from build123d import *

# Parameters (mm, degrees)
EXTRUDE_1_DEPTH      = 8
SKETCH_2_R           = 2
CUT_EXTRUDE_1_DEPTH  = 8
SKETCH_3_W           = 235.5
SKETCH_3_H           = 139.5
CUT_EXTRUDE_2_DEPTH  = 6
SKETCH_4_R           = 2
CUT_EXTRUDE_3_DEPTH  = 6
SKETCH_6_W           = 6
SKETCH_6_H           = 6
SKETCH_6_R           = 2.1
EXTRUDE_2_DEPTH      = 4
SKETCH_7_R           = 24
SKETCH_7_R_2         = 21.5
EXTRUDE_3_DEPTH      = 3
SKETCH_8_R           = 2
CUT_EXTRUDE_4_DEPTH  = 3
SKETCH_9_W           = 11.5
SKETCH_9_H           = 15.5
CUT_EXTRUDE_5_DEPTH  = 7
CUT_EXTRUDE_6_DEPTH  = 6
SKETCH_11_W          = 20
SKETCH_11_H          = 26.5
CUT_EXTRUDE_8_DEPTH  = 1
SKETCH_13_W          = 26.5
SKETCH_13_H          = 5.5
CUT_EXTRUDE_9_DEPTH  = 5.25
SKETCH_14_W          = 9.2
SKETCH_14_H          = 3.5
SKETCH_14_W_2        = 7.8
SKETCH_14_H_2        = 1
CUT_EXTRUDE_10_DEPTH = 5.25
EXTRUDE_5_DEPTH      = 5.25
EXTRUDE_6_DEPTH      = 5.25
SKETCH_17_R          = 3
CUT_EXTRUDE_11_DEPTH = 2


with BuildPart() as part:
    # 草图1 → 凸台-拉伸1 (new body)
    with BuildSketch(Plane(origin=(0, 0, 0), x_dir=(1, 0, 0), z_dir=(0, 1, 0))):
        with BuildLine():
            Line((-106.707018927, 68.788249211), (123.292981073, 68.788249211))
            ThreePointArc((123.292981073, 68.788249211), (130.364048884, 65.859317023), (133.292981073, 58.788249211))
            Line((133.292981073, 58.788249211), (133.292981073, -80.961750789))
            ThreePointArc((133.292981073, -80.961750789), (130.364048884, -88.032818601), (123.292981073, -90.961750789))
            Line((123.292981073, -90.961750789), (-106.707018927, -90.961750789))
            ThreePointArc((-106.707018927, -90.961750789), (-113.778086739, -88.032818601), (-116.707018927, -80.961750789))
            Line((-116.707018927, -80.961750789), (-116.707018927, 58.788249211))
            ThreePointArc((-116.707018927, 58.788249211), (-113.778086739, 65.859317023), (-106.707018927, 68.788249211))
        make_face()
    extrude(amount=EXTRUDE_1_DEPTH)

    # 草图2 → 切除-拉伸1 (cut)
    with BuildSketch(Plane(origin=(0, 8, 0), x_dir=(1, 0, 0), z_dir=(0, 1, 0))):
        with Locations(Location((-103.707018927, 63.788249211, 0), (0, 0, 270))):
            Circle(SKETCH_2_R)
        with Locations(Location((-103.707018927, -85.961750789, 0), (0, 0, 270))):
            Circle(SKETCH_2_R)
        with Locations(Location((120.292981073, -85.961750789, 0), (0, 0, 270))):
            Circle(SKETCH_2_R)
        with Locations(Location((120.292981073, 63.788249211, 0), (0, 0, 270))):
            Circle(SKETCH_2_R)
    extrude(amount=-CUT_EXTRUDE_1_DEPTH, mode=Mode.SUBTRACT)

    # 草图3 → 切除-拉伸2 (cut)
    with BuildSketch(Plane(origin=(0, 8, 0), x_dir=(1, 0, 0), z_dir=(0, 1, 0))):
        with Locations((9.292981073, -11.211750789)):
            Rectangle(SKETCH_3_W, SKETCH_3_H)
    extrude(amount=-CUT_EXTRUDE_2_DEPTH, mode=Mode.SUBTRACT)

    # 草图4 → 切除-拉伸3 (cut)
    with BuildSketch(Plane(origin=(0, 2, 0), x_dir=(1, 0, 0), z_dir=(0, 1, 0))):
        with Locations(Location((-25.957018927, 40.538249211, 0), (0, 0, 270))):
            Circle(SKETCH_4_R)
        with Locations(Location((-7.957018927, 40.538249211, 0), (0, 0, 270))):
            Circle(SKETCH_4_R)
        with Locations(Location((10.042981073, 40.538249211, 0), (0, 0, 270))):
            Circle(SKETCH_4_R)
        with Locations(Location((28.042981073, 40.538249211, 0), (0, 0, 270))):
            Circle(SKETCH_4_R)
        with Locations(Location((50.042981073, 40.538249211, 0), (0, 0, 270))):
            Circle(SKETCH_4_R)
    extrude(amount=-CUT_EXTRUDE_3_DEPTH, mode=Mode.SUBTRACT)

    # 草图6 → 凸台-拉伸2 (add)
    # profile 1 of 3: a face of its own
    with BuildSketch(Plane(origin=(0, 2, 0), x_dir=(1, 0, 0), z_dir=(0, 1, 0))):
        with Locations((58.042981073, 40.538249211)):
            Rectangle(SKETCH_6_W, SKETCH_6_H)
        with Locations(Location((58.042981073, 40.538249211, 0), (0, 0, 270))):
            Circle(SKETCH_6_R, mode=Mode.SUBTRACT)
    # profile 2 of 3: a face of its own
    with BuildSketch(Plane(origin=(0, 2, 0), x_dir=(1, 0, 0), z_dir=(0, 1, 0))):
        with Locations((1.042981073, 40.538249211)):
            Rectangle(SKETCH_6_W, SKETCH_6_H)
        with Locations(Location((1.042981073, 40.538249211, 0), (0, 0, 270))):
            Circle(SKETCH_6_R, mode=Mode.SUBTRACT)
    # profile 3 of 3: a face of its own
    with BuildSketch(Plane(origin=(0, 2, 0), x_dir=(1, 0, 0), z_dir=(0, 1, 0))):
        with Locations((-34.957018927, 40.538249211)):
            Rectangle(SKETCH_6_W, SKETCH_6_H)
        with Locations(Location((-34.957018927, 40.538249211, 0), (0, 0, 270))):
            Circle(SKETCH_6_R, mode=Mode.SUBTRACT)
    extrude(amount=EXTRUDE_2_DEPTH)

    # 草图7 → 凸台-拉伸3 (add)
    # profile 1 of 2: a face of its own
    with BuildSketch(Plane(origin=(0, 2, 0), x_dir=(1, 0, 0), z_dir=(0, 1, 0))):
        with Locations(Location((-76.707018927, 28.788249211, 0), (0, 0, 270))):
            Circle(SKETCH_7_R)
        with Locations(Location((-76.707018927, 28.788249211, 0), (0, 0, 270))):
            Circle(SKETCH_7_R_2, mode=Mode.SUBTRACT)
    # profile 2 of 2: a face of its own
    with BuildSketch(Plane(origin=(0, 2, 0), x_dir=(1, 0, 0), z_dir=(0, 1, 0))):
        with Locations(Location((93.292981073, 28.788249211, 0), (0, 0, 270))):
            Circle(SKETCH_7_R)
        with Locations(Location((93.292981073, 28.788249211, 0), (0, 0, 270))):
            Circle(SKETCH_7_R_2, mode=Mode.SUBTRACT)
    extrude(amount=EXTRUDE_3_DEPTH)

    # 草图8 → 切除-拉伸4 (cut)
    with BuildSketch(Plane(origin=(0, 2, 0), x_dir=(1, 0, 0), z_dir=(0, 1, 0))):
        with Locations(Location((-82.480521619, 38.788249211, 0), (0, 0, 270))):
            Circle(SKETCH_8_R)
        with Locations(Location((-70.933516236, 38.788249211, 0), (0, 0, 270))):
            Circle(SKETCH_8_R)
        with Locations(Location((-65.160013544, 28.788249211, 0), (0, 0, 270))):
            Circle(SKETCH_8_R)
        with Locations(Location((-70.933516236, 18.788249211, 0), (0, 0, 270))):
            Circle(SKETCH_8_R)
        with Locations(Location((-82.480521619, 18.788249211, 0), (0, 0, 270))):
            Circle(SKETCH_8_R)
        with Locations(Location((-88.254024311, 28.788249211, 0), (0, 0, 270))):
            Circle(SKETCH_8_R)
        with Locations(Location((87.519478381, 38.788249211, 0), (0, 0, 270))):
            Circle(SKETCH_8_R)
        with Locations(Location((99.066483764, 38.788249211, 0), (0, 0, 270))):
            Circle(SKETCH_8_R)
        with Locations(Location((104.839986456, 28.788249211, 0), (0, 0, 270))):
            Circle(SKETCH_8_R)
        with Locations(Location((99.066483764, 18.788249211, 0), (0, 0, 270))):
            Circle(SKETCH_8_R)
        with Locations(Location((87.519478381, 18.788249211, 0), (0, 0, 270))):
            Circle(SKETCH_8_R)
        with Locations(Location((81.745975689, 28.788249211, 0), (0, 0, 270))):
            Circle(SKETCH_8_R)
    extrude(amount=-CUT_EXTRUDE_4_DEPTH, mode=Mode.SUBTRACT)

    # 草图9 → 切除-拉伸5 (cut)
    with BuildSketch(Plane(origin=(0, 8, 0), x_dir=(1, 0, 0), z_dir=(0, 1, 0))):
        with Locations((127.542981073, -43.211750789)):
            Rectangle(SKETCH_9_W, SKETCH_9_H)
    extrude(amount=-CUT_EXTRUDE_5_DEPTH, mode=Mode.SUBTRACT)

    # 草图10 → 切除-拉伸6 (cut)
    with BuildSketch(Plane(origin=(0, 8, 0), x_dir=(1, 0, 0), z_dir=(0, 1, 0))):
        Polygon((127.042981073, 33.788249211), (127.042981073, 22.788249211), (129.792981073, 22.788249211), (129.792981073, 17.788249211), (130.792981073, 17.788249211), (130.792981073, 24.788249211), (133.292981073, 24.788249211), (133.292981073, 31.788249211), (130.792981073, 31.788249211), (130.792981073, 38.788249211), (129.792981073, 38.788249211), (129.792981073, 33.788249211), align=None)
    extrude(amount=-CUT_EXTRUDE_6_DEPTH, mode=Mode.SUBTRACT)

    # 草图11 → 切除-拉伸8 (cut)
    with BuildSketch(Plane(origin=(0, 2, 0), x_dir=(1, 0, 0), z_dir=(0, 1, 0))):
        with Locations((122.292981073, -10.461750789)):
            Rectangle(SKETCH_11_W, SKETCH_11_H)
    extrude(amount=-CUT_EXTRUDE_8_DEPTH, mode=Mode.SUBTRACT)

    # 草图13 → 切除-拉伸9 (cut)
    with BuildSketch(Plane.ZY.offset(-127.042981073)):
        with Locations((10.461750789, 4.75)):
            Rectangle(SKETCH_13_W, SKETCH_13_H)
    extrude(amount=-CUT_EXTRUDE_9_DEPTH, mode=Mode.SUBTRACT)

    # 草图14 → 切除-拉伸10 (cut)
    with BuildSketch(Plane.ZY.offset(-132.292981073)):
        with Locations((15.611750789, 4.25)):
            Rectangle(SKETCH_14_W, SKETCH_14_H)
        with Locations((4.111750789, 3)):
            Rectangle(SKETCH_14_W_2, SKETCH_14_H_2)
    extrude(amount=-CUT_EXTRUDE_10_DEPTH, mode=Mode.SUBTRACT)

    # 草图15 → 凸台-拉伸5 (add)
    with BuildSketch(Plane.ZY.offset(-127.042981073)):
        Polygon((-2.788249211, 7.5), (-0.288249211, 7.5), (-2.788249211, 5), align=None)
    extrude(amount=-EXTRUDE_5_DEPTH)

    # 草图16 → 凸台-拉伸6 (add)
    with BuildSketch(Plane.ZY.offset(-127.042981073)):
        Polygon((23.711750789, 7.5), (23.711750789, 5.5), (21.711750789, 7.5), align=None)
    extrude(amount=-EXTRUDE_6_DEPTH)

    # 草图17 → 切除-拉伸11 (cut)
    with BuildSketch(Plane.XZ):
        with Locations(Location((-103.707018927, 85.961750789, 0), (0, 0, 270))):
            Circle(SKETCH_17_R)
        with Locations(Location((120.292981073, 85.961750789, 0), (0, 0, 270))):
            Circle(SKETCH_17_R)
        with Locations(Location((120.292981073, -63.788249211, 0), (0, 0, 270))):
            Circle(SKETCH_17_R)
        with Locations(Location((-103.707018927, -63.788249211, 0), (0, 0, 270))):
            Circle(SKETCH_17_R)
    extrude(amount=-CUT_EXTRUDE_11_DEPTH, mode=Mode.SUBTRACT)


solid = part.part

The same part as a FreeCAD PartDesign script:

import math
import FreeCAD as App
import Part
import Sketcher

V = App.Vector

doc = App.newDocument("Part")
body = doc.addObject("PartDesign::Body", "Body")

sketch1 = doc.addObject("Sketcher::SketchObject", "Sketch")
body.addObject(sketch1)
sketch1.AttachmentSupport = (doc.XZ_Plane, [""])
sketch1.MapMode = "FlatFace"
sketch1.addGeometry(Part.LineSegment(V(123.292981, -68.788249, 0), V(-106.707019, -68.788249, 0)), False)
sketch1.addGeometry(Part.ArcOfCircle(Part.Circle(V(-106.707019, -58.788249, 0), V(0, 0, 1), 10), math.radians(180), math.radians(270)), False)
sketch1.addGeometry(Part.LineSegment(V(-116.707019, -58.788249, 0), V(-116.707019, 80.961751, 0)), False)
sketch1.addGeometry(Part.ArcOfCircle(Part.Circle(V(-106.707019, 80.961751, 0), V(0, 0, 1), 10), math.radians(90), math.radians(180)), False)
sketch1.addGeometry(Part.LineSegment(V(-106.707019, 90.961751, 0), V(123.292981, 90.961751, 0)), False)
sketch1.addGeometry(Part.ArcOfCircle(Part.Circle(V(123.292981, 80.961751, 0), V(0, 0, 1), 10), math.radians(0), math.radians(90)), False)
sketch1.addGeometry(Part.LineSegment(V(133.292981, 80.961751, 0), V(133.292981, -58.788249, 0)), False)
sketch1.addGeometry(Part.ArcOfCircle(Part.Circle(V(123.292981, -58.788249, 0), V(0, 0, 1), 10), math.radians(-90), math.radians(0)), False)
sketch1.addConstraint(Sketcher.Constraint("Tangent", 0, 2, 1, 2))
sketch1.addConstraint(Sketcher.Constraint("Tangent", 1, 1, 2, 1))
sketch1.addConstraint(Sketcher.Constraint("Tangent", 2, 2, 3, 2))
sketch1.addConstraint(Sketcher.Constraint("Tangent", 3, 1, 4, 1))
sketch1.addConstraint(Sketcher.Constraint("Tangent", 4, 2, 5, 2))
sketch1.addConstraint(Sketcher.Constraint("Tangent", 5, 1, 6, 1))
sketch1.addConstraint(Sketcher.Constraint("Tangent", 6, 2, 7, 2))
sketch1.addConstraint(Sketcher.Constraint("Tangent", 7, 1, 0, 1))
sketch1.addConstraint(Sketcher.Constraint("Horizontal", 0))
sketch1.addConstraint(Sketcher.Constraint("Vertical", 2))
sketch1.addConstraint(Sketcher.Constraint("Horizontal", 4))
sketch1.addConstraint(Sketcher.Constraint("Vertical", 6))
sketch1.addConstraint(Sketcher.Constraint("Equal", 1, 3))
sketch1.addConstraint(Sketcher.Constraint("Equal", 3, 5))
sketch1.addConstraint(Sketcher.Constraint("Equal", 5, 7))
sketch1.addConstraint(Sketcher.Constraint("Radius", 1, 10.0))
sketch1.addConstraint(Sketcher.Constraint("DistanceX", 0, 2, 0, 1, 230.0))
sketch1.addConstraint(Sketcher.Constraint("DistanceY", 2, 1, 2, 2, 139.75))
sketch1.addConstraint(Sketcher.Constraint("DistanceX", 1, 3, -1, 1, 106.707019))
sketch1.addConstraint(Sketcher.Constraint("DistanceY", 1, 3, -1, 1, 58.788249))
pad1 = doc.addObject("PartDesign::Pad", "Pad")
body.addObject(pad1)
pad1.Profile = sketch1
pad1.Length = 8
pad1.Reversed = True

sketch2 = doc.addObject("Sketcher::SketchObject", "Sketch001")
body.addObject(sketch2)
sketch2.AttachmentSupport = (doc.XZ_Plane, [""])
sketch2.MapMode = "FlatFace"
sketch2.AttachmentOffset = App.Placement(V(0, 0, -8), App.Rotation())
sketch2.addGeometry(Part.Circle(V(-103.707019, -63.788249, 0), V(0, 0, 1), 2), False)
sketch2.addGeometry(Part.Circle(V(-103.707019, 85.961751, 0), V(0, 0, 1), 2), False)
sketch2.addGeometry(Part.Circle(V(120.292981, 85.961751, 0), V(0, 0, 1), 2), False)
sketch2.addGeometry(Part.Circle(V(120.292981, -63.788249, 0), V(0, 0, 1), 2), False)
sketch2.addConstraint(Sketcher.Constraint("Equal", 0, 1))
sketch2.addConstraint(Sketcher.Constraint("Equal", 1, 2))
sketch2.addConstraint(Sketcher.Constraint("Equal", 2, 3))
sketch2.addConstraint(Sketcher.Constraint("Horizontal", 1, 3, 2, 3))
sketch2.addConstraint(Sketcher.Constraint("Horizontal", 0, 3, 3, 3))
sketch2.addConstraint(Sketcher.Constraint("Vertical", 0, 3, 1, 3))
sketch2.addConstraint(Sketcher.Constraint("Vertical", 2, 3, 3, 3))
sketch2.addConstraint(Sketcher.Constraint("Diameter", 0, 4.0))
sketch2.addConstraint(Sketcher.Constraint("DistanceX", 1, 3, 2, 3, 224.0))
sketch2.addConstraint(Sketcher.Constraint("DistanceY", 0, 3, 1, 3, 149.75))
sketch2.addConstraint(Sketcher.Constraint("DistanceX", 0, 3, -1, 1, 103.707019))
sketch2.addConstraint(Sketcher.Constraint("DistanceY", 0, 3, -1, 1, 63.788249))
pocket1 = doc.addObject("PartDesign::Pocket", "Pocket")
body.addObject(pocket1)
pocket1.Profile = sketch2
pocket1.Length = 8
pocket1.Reversed = True

sketch3 = doc.addObject("Sketcher::SketchObject", "Sketch002")
body.addObject(sketch3)
sketch3.AttachmentSupport = (doc.XZ_Plane, [""])
sketch3.MapMode = "FlatFace"
sketch3.AttachmentOffset = App.Placement(V(0, 0, -8), App.Rotation())
sketch3.addGeometry(Part.LineSegment(V(-108.457019, -58.538249, 0), V(-108.457019, 80.961751, 0)), False)
sketch3.addGeometry(Part.LineSegment(V(-108.457019, 80.961751, 0), V(127.042981, 80.961751, 0)), False)
sketch3.addGeometry(Part.LineSegment(V(127.042981, 80.961751, 0), V(127.042981, -58.538249, 0)), False)
sketch3.addGeometry(Part.LineSegment(V(127.042981, -58.538249, 0), V(-108.457019, -58.538249, 0)), False)
sketch3.addConstraint(Sketcher.Constraint("Coincident", 0, 2, 1, 1))
sketch3.addConstraint(Sketcher.Constraint("Coincident", 1, 2, 2, 1))
sketch3.addConstraint(Sketcher.Constraint("Coincident", 2, 2, 3, 1))
sketch3.addConstraint(Sketcher.Constraint("Coincident", 3, 2, 0, 1))
sketch3.addConstraint(Sketcher.Constraint("Vertical", 0))
sketch3.addConstraint(Sketcher.Constraint("Horizontal", 1))
sketch3.addConstraint(Sketcher.Constraint("Vertical", 2))
sketch3.addConstraint(Sketcher.Constraint("Horizontal", 3))
sketch3.addConstraint(Sketcher.Constraint("DistanceX", 1, 1, 1, 2, 235.5))
sketch3.addConstraint(Sketcher.Constraint("DistanceY", 0, 1, 0, 2, 139.5))
sketch3.addConstraint(Sketcher.Constraint("DistanceX", 0, 2, -1, 1, 108.457019))
sketch3.addConstraint(Sketcher.Constraint("DistanceY", -1, 1, 0, 2, 80.961751))
pocket2 = doc.addObject("PartDesign::Pocket", "Pocket001")
body.addObject(pocket2)
pocket2.Profile = sketch3
pocket2.Length = 6
pocket2.Reversed = True

sketch4 = doc.addObject("Sketcher::SketchObject", "Sketch003")
body.addObject(sketch4)
sketch4.AttachmentSupport = (doc.XZ_Plane, [""])
sketch4.MapMode = "FlatFace"
sketch4.AttachmentOffset = App.Placement(V(0, 0, -2), App.Rotation())
sketch4.addGeometry(Part.Circle(V(-25.957019, -40.538249, 0), V(0, 0, 1), 2), False)
sketch4.addGeometry(Part.Circle(V(-7.957019, -40.538249, 0), V(0, 0, 1), 2), False)
sketch4.addGeometry(Part.Circle(V(10.042981, -40.538249, 0), V(0, 0, 1), 2), False)
sketch4.addGeometry(Part.Circle(V(28.042981, -40.538249, 0), V(0, 0, 1), 2), False)
sketch4.addGeometry(Part.Circle(V(50.042981, -40.538249, 0), V(0, 0, 1), 2), False)
sketch4.addConstraint(Sketcher.Constraint("Equal", 0, 1))
sketch4.addConstraint(Sketcher.Constraint("Equal", 1, 2))
sketch4.addConstraint(Sketcher.Constraint("Equal", 2, 3))
sketch4.addConstraint(Sketcher.Constraint("Equal", 3, 4))
sketch4.addConstraint(Sketcher.Constraint("Horizontal", 0, 3, 1, 3))
sketch4.addConstraint(Sketcher.Constraint("Horizontal", 1, 3, 2, 3))
sketch4.addConstraint(Sketcher.Constraint("Horizontal", 2, 3, 3, 3))
sketch4.addConstraint(Sketcher.Constraint("Horizontal", 3, 3, 4, 3))
sketch4.addConstraint(Sketcher.Constraint("Diameter", 0, 4.0))
sketch4.addConstraint(Sketcher.Constraint("DistanceX", 0, 3, 1, 3, 18.0))
sketch4.addConstraint(Sketcher.Constraint("DistanceX", 1, 3, 2, 3, 18.0))
sketch4.addConstraint(Sketcher.Constraint("DistanceX", 2, 3, 3, 3, 18.0))
sketch4.addConstraint(Sketcher.Constraint("DistanceX", 3, 3, 4, 3, 22.0))
sketch4.addConstraint(Sketcher.Constraint("DistanceX", 0, 3, -1, 1, 25.957019))
sketch4.addConstraint(Sketcher.Constraint("DistanceY", 0, 3, -1, 1, 40.538249))
pocket3 = doc.addObject("PartDesign::Pocket", "Pocket002")
body.addObject(pocket3)
pocket3.Profile = sketch4
pocket3.Length = 6
pocket3.Reversed = True

sketch5 = doc.addObject("Sketcher::SketchObject", "Sketch004")
body.addObject(sketch5)
sketch5.AttachmentSupport = (doc.XZ_Plane, [""])
sketch5.MapMode = "FlatFace"
sketch5.AttachmentOffset = App.Placement(V(0, 0, -2), App.Rotation())
sketch5.addGeometry(Part.LineSegment(V(55.042981, -43.538249, 0), V(55.042981, -37.538249, 0)), False)
sketch5.addGeometry(Part.LineSegment(V(55.042981, -37.538249, 0), V(61.042981, -37.538249, 0)), False)
sketch5.addGeometry(Part.LineSegment(V(61.042981, -37.538249, 0), V(61.042981, -43.538249, 0)), False)
sketch5.addGeometry(Part.LineSegment(V(61.042981, -43.538249, 0), V(55.042981, -43.538249, 0)), False)
sketch5.addGeometry(Part.Circle(V(58.042981, -40.538249, 0), V(0, 0, 1), 2.1), False)
sketch5.addGeometry(Part.LineSegment(V(-1.957019, -43.538249, 0), V(-1.957019, -37.538249, 0)), False)
sketch5.addGeometry(Part.LineSegment(V(-1.957019, -37.538249, 0), V(4.042981, -37.538249, 0)), False)
sketch5.addGeometry(Part.LineSegment(V(4.042981, -37.538249, 0), V(4.042981, -43.538249, 0)), False)
sketch5.addGeometry(Part.LineSegment(V(4.042981, -43.538249, 0), V(-1.957019, -43.538249, 0)), False)
sketch5.addGeometry(Part.Circle(V(1.042981, -40.538249, 0), V(0, 0, 1), 2.1), False)
sketch5.addGeometry(Part.LineSegment(V(-37.957019, -43.538249, 0), V(-37.957019, -37.538249, 0)), False)
sketch5.addGeometry(Part.LineSegment(V(-37.957019, -37.538249, 0), V(-31.957019, -37.538249, 0)), False)
sketch5.addGeometry(Part.LineSegment(V(-31.957019, -37.538249, 0), V(-31.957019, -43.538249, 0)), False)
sketch5.addGeometry(Part.LineSegment(V(-31.957019, -43.538249, 0), V(-37.957019, -43.538249, 0)), False)
sketch5.addGeometry(Part.Circle(V(-34.957019, -40.538249, 0), V(0, 0, 1), 2.1), False)
sketch5.addConstraint(Sketcher.Constraint("Coincident", 0, 2, 1, 1))
sketch5.addConstraint(Sketcher.Constraint("Coincident", 1, 2, 2, 1))
sketch5.addConstraint(Sketcher.Constraint("Coincident", 2, 2, 3, 1))
sketch5.addConstraint(Sketcher.Constraint("Coincident", 3, 2, 0, 1))
sketch5.addConstraint(Sketcher.Constraint("Coincident", 5, 2, 6, 1))
sketch5.addConstraint(Sketcher.Constraint("Coincident", 6, 2, 7, 1))
sketch5.addConstraint(Sketcher.Constraint("Coincident", 7, 2, 8, 1))
sketch5.addConstraint(Sketcher.Constraint("Coincident", 8, 2, 5, 1))
sketch5.addConstraint(Sketcher.Constraint("Coincident", 10, 2, 11, 1))
sketch5.addConstraint(Sketcher.Constraint("Coincident", 11, 2, 12, 1))
sketch5.addConstraint(Sketcher.Constraint("Coincident", 12, 2, 13, 1))
sketch5.addConstraint(Sketcher.Constraint("Coincident", 13, 2, 10, 1))
sketch5.addConstraint(Sketcher.Constraint("Vertical", 0))
sketch5.addConstraint(Sketcher.Constraint("Horizontal", 1))
sketch5.addConstraint(Sketcher.Constraint("Vertical", 2))
sketch5.addConstraint(Sketcher.Constraint("Horizontal", 3))
sketch5.addConstraint(Sketcher.Constraint("Vertical", 5))
sketch5.addConstraint(Sketcher.Constraint("Horizontal", 6))
sketch5.addConstraint(Sketcher.Constraint("Vertical", 7))
sketch5.addConstraint(Sketcher.Constraint("Horizontal", 8))
sketch5.addConstraint(Sketcher.Constraint("Vertical", 10))
sketch5.addConstraint(Sketcher.Constraint("Horizontal", 11))
sketch5.addConstraint(Sketcher.Constraint("Vertical", 12))
sketch5.addConstraint(Sketcher.Constraint("Horizontal", 13))
sketch5.addConstraint(Sketcher.Constraint("Equal", 4, 9))
sketch5.addConstraint(Sketcher.Constraint("Equal", 9, 14))
sketch5.addConstraint(Sketcher.Constraint("Horizontal", 4, 3, 9, 3))
sketch5.addConstraint(Sketcher.Constraint("Horizontal", 9, 3, 14, 3))
sketch5.addConstraint(Sketcher.Constraint("Horizontal", 1, 2, 5, 2))
sketch5.addConstraint(Sketcher.Constraint("Horizontal", 3, 2, 7, 2))
sketch5.addConstraint(Sketcher.Constraint("Horizontal", 6, 2, 10, 2))
sketch5.addConstraint(Sketcher.Constraint("Horizontal", 8, 2, 12, 2))
sketch5.addConstraint(Sketcher.Constraint("Equal", 3, 6))
sketch5.addConstraint(Sketcher.Constraint("Equal", 8, 11))
sketch5.addConstraint(Sketcher.Constraint("Equal", 13, 0))
sketch5.addConstraint(Sketcher.Constraint("Diameter", 4, 4.2))
sketch5.addConstraint(Sketcher.Constraint("DistanceX", 1, 1, 1, 2, 6.0))
sketch5.addConstraint(Sketcher.Constraint("DistanceX", 9, 3, 4, 3, 57.0))
sketch5.addConstraint(Sketcher.Constraint("DistanceX", 14, 3, 9, 3, 36.0))
sketch5.addConstraint(Sketcher.Constraint("DistanceX", 0, 2, 4, 3, 3.0))
sketch5.addConstraint(Sketcher.Constraint("DistanceY", 4, 3, 0, 2, 3.0))
sketch5.addConstraint(Sketcher.Constraint("DistanceX", 5, 2, 9, 3, 3.0))
sketch5.addConstraint(Sketcher.Constraint("DistanceX", 10, 2, 14, 3, 3.0))
sketch5.addConstraint(Sketcher.Constraint("DistanceX", -1, 1, 4, 3, 58.042981))
sketch5.addConstraint(Sketcher.Constraint("DistanceY", 4, 3, -1, 1, 40.538249))
pad2 = doc.addObject("PartDesign::Pad", "Pad001")
body.addObject(pad2)
pad2.Profile = sketch5
pad2.Length = 4
pad2.Reversed = True

sketch6 = doc.addObject("Sketcher::SketchObject", "Sketch005")
body.addObject(sketch6)
sketch6.AttachmentSupport = (doc.XZ_Plane, [""])
sketch6.MapMode = "FlatFace"
sketch6.AttachmentOffset = App.Placement(V(0, 0, -2), App.Rotation())
sketch6.addGeometry(Part.Circle(V(-76.707019, -28.788249, 0), V(0, 0, 1), 24), False)
sketch6.addGeometry(Part.Circle(V(-76.707019, -28.788249, 0), V(0, 0, 1), 21.5), False)
sketch6.addGeometry(Part.Circle(V(93.292981, -28.788249, 0), V(0, 0, 1), 24), False)
sketch6.addGeometry(Part.Circle(V(93.292981, -28.788249, 0), V(0, 0, 1), 21.5), False)
sketch6.addConstraint(Sketcher.Constraint("Coincident", 1, 3, 0, 3))
sketch6.addConstraint(Sketcher.Constraint("Coincident", 3, 3, 2, 3))
sketch6.addConstraint(Sketcher.Constraint("Equal", 0, 2))
sketch6.addConstraint(Sketcher.Constraint("Equal", 1, 3))
sketch6.addConstraint(Sketcher.Constraint("Horizontal", 1, 3, 2, 3))
sketch6.addConstraint(Sketcher.Constraint("Diameter", 0, 48.0))
sketch6.addConstraint(Sketcher.Constraint("Diameter", 1, 43.0))
sketch6.addConstraint(Sketcher.Constraint("DistanceX", 0, 3, 2, 3, 170.0))
sketch6.addConstraint(Sketcher.Constraint("DistanceX", 0, 3, -1, 1, 76.707019))
sketch6.addConstraint(Sketcher.Constraint("DistanceY", 0, 3, -1, 1, 28.788249))
pad3 = doc.addObject("PartDesign::Pad", "Pad002")
body.addObject(pad3)
pad3.Profile = sketch6
pad3.Length = 3
pad3.Reversed = True

sketch7 = doc.addObject("Sketcher::SketchObject", "Sketch006")
body.addObject(sketch7)
sketch7.AttachmentSupport = (doc.XZ_Plane, [""])
sketch7.MapMode = "FlatFace"
sketch7.AttachmentOffset = App.Placement(V(0, 0, -2), App.Rotation())
sketch7.addGeometry(Part.Circle(V(-82.480522, -38.788249, 0), V(0, 0, 1), 2), False)
sketch7.addGeometry(Part.Circle(V(-70.933516, -38.788249, 0), V(0, 0, 1), 2), False)
sketch7.addGeometry(Part.Circle(V(-65.160014, -28.788249, 0), V(0, 0, 1), 2), False)
sketch7.addGeometry(Part.Circle(V(-70.933516, -18.788249, 0), V(0, 0, 1), 2), False)
sketch7.addGeometry(Part.Circle(V(-82.480522, -18.788249, 0), V(0, 0, 1), 2), False)
sketch7.addGeometry(Part.Circle(V(-88.254024, -28.788249, 0), V(0, 0, 1), 2), False)
sketch7.addGeometry(Part.Circle(V(87.519478, -38.788249, 0), V(0, 0, 1), 2), False)
sketch7.addGeometry(Part.Circle(V(99.066484, -38.788249, 0), V(0, 0, 1), 2), False)
sketch7.addGeometry(Part.Circle(V(104.839986, -28.788249, 0), V(0, 0, 1), 2), False)
sketch7.addGeometry(Part.Circle(V(99.066484, -18.788249, 0), V(0, 0, 1), 2), False)
sketch7.addGeometry(Part.Circle(V(87.519478, -18.788249, 0), V(0, 0, 1), 2), False)
sketch7.addGeometry(Part.Circle(V(81.745976, -28.788249, 0), V(0, 0, 1), 2), False)
sketch7.addConstraint(Sketcher.Constraint("Equal", 0, 1))
sketch7.addConstraint(Sketcher.Constraint("Equal", 1, 2))
sketch7.addConstraint(Sketcher.Constraint("Equal", 2, 3))
sketch7.addConstraint(Sketcher.Constraint("Equal", 3, 4))
sketch7.addConstraint(Sketcher.Constraint("Equal", 4, 5))
sketch7.addConstraint(Sketcher.Constraint("Equal", 5, 6))
sketch7.addConstraint(Sketcher.Constraint("Equal", 6, 7))
sketch7.addConstraint(Sketcher.Constraint("Equal", 7, 8))
sketch7.addConstraint(Sketcher.Constraint("Equal", 8, 9))
sketch7.addConstraint(Sketcher.Constraint("Equal", 9, 10))
sketch7.addConstraint(Sketcher.Constraint("Equal", 10, 11))
sketch7.addConstraint(Sketcher.Constraint("Horizontal", 0, 3, 1, 3))
sketch7.addConstraint(Sketcher.Constraint("Horizontal", 3, 3, 4, 3))
sketch7.addConstraint(Sketcher.Constraint("Horizontal", 2, 3, 5, 3))
sketch7.addConstraint(Sketcher.Constraint("Horizontal", 1, 3, 6, 3))
sketch7.addConstraint(Sketcher.Constraint("Horizontal", 6, 3, 7, 3))
sketch7.addConstraint(Sketcher.Constraint("Horizontal", 5, 3, 8, 3))
sketch7.addConstraint(Sketcher.Constraint("Horizontal", 4, 3, 9, 3))
sketch7.addConstraint(Sketcher.Constraint("Horizontal", 9, 3, 10, 3))
sketch7.addConstraint(Sketcher.Constraint("Horizontal", 8, 3, 11, 3))
sketch7.addConstraint(Sketcher.Constraint("Vertical", 1, 3, 3, 3))
sketch7.addConstraint(Sketcher.Constraint("Vertical", 0, 3, 4, 3))
sketch7.addConstraint(Sketcher.Constraint("Vertical", 7, 3, 9, 3))
sketch7.addConstraint(Sketcher.Constraint("Vertical", 6, 3, 10, 3))
sketch7.addConstraint(Sketcher.Constraint("Diameter", 0, 4.0))
sketch7.addConstraint(Sketcher.Constraint("DistanceY", 1, 3, 2, 3, 10.0))
sketch7.addConstraint(Sketcher.Constraint("DistanceY", 2, 3, 3, 3, 10.0))
sketch7.addConstraint(Sketcher.Constraint("DistanceX", 0, 3, 6, 3, 170.0))
sketch7.addConstraint(Sketcher.Constraint("DistanceX", 1, 3, 7, 3, 170.0))
sketch7.addConstraint(Sketcher.Constraint("DistanceX", 2, 3, 8, 3, 170.0))
sketch7.addConstraint(Sketcher.Constraint("DistanceX", 0, 3, -1, 1, 82.480522))
sketch7.addConstraint(Sketcher.Constraint("DistanceY", 0, 3, -1, 1, 38.788249))
sketch7.addConstraint(Sketcher.Constraint("DistanceX", 0, 3, 2, 3, 17.320508))
sketch7.addConstraint(Sketcher.Constraint("DistanceX", 5, 3, 1, 3, 17.320508))
sketch7.addConstraint(Sketcher.Constraint("DistanceX", 5, 3, 2, 3, 23.094011))
sketch7.addConstraint(Sketcher.Constraint("DistanceX", 11, 3, 7, 3, 17.320508))
pocket4 = doc.addObject("PartDesign::Pocket", "Pocket003")
body.addObject(pocket4)
pocket4.Profile = sketch7
pocket4.Length = 3
pocket4.Reversed = True

sketch8 = doc.addObject("Sketcher::SketchObject", "Sketch007")
body.addObject(sketch8)
sketch8.AttachmentSupport = (doc.XZ_Plane, [""])
sketch8.MapMode = "FlatFace"
sketch8.AttachmentOffset = App.Placement(V(0, 0, -8), App.Rotation())
sketch8.addGeometry(Part.LineSegment(V(121.792981, 35.461751, 0), V(121.792981, 50.961751, 0)), False)
sketch8.addGeometry(Part.LineSegment(V(121.792981, 50.961751, 0), V(133.292981, 50.961751, 0)), False)
sketch8.addGeometry(Part.LineSegment(V(133.292981, 50.961751, 0), V(133.292981, 35.461751, 0)), False)
sketch8.addGeometry(Part.LineSegment(V(133.292981, 35.461751, 0), V(121.792981, 35.461751, 0)), False)
sketch8.addConstraint(Sketcher.Constraint("Coincident", 0, 2, 1, 1))
sketch8.addConstraint(Sketcher.Constraint("Coincident", 1, 2, 2, 1))
sketch8.addConstraint(Sketcher.Constraint("Coincident", 2, 2, 3, 1))
sketch8.addConstraint(Sketcher.Constraint("Coincident", 3, 2, 0, 1))
sketch8.addConstraint(Sketcher.Constraint("Vertical", 0))
sketch8.addConstraint(Sketcher.Constraint("Horizontal", 1))
sketch8.addConstraint(Sketcher.Constraint("Vertical", 2))
sketch8.addConstraint(Sketcher.Constraint("Horizontal", 3))
sketch8.addConstraint(Sketcher.Constraint("DistanceX", 1, 1, 1, 2, 11.5))
sketch8.addConstraint(Sketcher.Constraint("DistanceY", 0, 1, 0, 2, 15.5))
sketch8.addConstraint(Sketcher.Constraint("DistanceX", -1, 1, 0, 2, 121.792981))
sketch8.addConstraint(Sketcher.Constraint("DistanceY", -1, 1, 0, 2, 50.961751))
pocket5 = doc.addObject("PartDesign::Pocket", "Pocket004")
body.addObject(pocket5)
pocket5.Profile = sketch8
pocket5.Length = 7
pocket5.Reversed = True

sketch9 = doc.addObject("Sketcher::SketchObject", "Sketch008")
body.addObject(sketch9)
sketch9.AttachmentSupport = (doc.XZ_Plane, [""])
sketch9.MapMode = "FlatFace"
sketch9.AttachmentOffset = App.Placement(V(0, 0, -8), App.Rotation())
sketch9.addGeometry(Part.LineSegment(V(127.042981, -33.788249, 0), V(127.042981, -22.788249, 0)), False)
sketch9.addGeometry(Part.LineSegment(V(127.042981, -22.788249, 0), V(129.792981, -22.788249, 0)), False)
sketch9.addGeometry(Part.LineSegment(V(129.792981, -22.788249, 0), V(129.792981, -17.788249, 0)), False)
sketch9.addGeometry(Part.LineSegment(V(129.792981, -17.788249, 0), V(130.792981, -17.788249, 0)), False)
sketch9.addGeometry(Part.LineSegment(V(130.792981, -17.788249, 0), V(130.792981, -24.788249, 0)), False)
sketch9.addGeometry(Part.LineSegment(V(130.792981, -24.788249, 0), V(133.292981, -24.788249, 0)), False)
sketch9.addGeometry(Part.LineSegment(V(133.292981, -24.788249, 0), V(133.292981, -31.788249, 0)), False)
sketch9.addGeometry(Part.LineSegment(V(133.292981, -31.788249, 0), V(130.792981, -31.788249, 0)), False)
sketch9.addGeometry(Part.LineSegment(V(130.792981, -31.788249, 0), V(130.792981, -38.788249, 0)), False)
sketch9.addGeometry(Part.LineSegment(V(130.792981, -38.788249, 0), V(129.792981, -38.788249, 0)), False)
sketch9.addGeometry(Part.LineSegment(V(129.792981, -38.788249, 0), V(129.792981, -33.788249, 0)), False)
sketch9.addGeometry(Part.LineSegment(V(129.792981, -33.788249, 0), V(127.042981, -33.788249, 0)), False)
sketch9.addConstraint(Sketcher.Constraint("Coincident", 0, 2, 1, 1))
sketch9.addConstraint(Sketcher.Constraint("Coincident", 1, 2, 2, 1))
sketch9.addConstraint(Sketcher.Constraint("Coincident", 2, 2, 3, 1))
sketch9.addConstraint(Sketcher.Constraint("Coincident", 3, 2, 4, 1))
sketch9.addConstraint(Sketcher.Constraint("Coincident", 4, 2, 5, 1))
sketch9.addConstraint(Sketcher.Constraint("Coincident", 5, 2, 6, 1))
sketch9.addConstraint(Sketcher.Constraint("Coincident", 6, 2, 7, 1))
sketch9.addConstraint(Sketcher.Constraint("Coincident", 7, 2, 8, 1))
sketch9.addConstraint(Sketcher.Constraint("Coincident", 8, 2, 9, 1))
sketch9.addConstraint(Sketcher.Constraint("Coincident", 9, 2, 10, 1))
sketch9.addConstraint(Sketcher.Constraint("Coincident", 10, 2, 11, 1))
sketch9.addConstraint(Sketcher.Constraint("Coincident", 11, 2, 0, 1))
sketch9.addConstraint(Sketcher.Constraint("Vertical", 0))
sketch9.addConstraint(Sketcher.Constraint("Horizontal", 1))
sketch9.addConstraint(Sketcher.Constraint("Vertical", 2))
sketch9.addConstraint(Sketcher.Constraint("Horizontal", 3))
sketch9.addConstraint(Sketcher.Constraint("Vertical", 4))
sketch9.addConstraint(Sketcher.Constraint("Horizontal", 5))
sketch9.addConstraint(Sketcher.Constraint("Vertical", 6))
sketch9.addConstraint(Sketcher.Constraint("Horizontal", 7))
sketch9.addConstraint(Sketcher.Constraint("Vertical", 8))
sketch9.addConstraint(Sketcher.Constraint("Horizontal", 9))
sketch9.addConstraint(Sketcher.Constraint("Vertical", 10))
sketch9.addConstraint(Sketcher.Constraint("Horizontal", 11))
sketch9.addConstraint(Sketcher.Constraint("Vertical", 4, 2, 7, 2))
sketch9.addConstraint(Sketcher.Constraint("Vertical", 2, 2, 9, 2))
sketch9.addConstraint(Sketcher.Constraint("Equal", 4, 6))
sketch9.addConstraint(Sketcher.Constraint("Equal", 6, 8))
sketch9.addConstraint(Sketcher.Constraint("Equal", 2, 10))
sketch9.addConstraint(Sketcher.Constraint("DistanceX", 3, 1, 3, 2, 1.0))
sketch9.addConstraint(Sketcher.Constraint("DistanceY", 0, 1, 0, 2, 11.0))
sketch9.addConstraint(Sketcher.Constraint("DistanceY", 2, 1, 2, 2, 5.0))
sketch9.addConstraint(Sketcher.Constraint("DistanceX", 5, 1, 5, 2, 2.5))
sketch9.addConstraint(Sketcher.Constraint("DistanceX", 1, 1, 1, 2, 2.75))
sketch9.addConstraint(Sketcher.Constraint("DistanceX", -1, 1, 0, 2, 127.042981))
sketch9.addConstraint(Sketcher.Constraint("DistanceY", 0, 2, -1, 1, 22.788249))
pocket6 = doc.addObject("PartDesign::Pocket", "Pocket005")
body.addObject(pocket6)
pocket6.Profile = sketch9
pocket6.Length = 6
pocket6.Reversed = True

sketch10 = doc.addObject("Sketcher::SketchObject", "Sketch009")
body.addObject(sketch10)
sketch10.AttachmentSupport = (doc.XZ_Plane, [""])
sketch10.MapMode = "FlatFace"
sketch10.AttachmentOffset = App.Placement(V(0, 0, -2), App.Rotation())
sketch10.addGeometry(Part.LineSegment(V(112.292981, -2.788249, 0), V(112.292981, 23.711751, 0)), False)
sketch10.addGeometry(Part.LineSegment(V(112.292981, 23.711751, 0), V(132.292981, 23.711751, 0)), False)
sketch10.addGeometry(Part.LineSegment(V(132.292981, 23.711751, 0), V(132.292981, -2.788249, 0)), False)
sketch10.addGeometry(Part.LineSegment(V(132.292981, -2.788249, 0), V(112.292981, -2.788249, 0)), False)
sketch10.addConstraint(Sketcher.Constraint("Coincident", 0, 2, 1, 1))
sketch10.addConstraint(Sketcher.Constraint("Coincident", 1, 2, 2, 1))
sketch10.addConstraint(Sketcher.Constraint("Coincident", 2, 2, 3, 1))
sketch10.addConstraint(Sketcher.Constraint("Coincident", 3, 2, 0, 1))
sketch10.addConstraint(Sketcher.Constraint("Vertical", 0))
sketch10.addConstraint(Sketcher.Constraint("Horizontal", 1))
sketch10.addConstraint(Sketcher.Constraint("Vertical", 2))
sketch10.addConstraint(Sketcher.Constraint("Horizontal", 3))
sketch10.addConstraint(Sketcher.Constraint("DistanceX", 1, 1, 1, 2, 20.0))
sketch10.addConstraint(Sketcher.Constraint("DistanceY", 0, 1, 0, 2, 26.5))
sketch10.addConstraint(Sketcher.Constraint("DistanceX", -1, 1, 0, 2, 112.292981))
sketch10.addConstraint(Sketcher.Constraint("DistanceY", -1, 1, 0, 2, 23.711751))
pocket7 = doc.addObject("PartDesign::Pocket", "Pocket006")
body.addObject(pocket7)
pocket7.Profile = sketch10
pocket7.Length = 1
pocket7.Reversed = True

sketch11 = doc.addObject("Sketcher::SketchObject", "Sketch010")
body.addObject(sketch11)
sketch11.AttachmentSupport = (doc.YZ_Plane, [""])
sketch11.MapMode = "FlatFace"
sketch11.AttachmentOffset = App.Placement(V(0, 0, 127.042981), App.Rotation())
sketch11.addGeometry(Part.LineSegment(V(7.5, -2.788249, 0), V(2, -2.788249, 0)), False)
sketch11.addGeometry(Part.LineSegment(V(2, -2.788249, 0), V(2, 23.711751, 0)), False)
sketch11.addGeometry(Part.LineSegment(V(2, 23.711751, 0), V(7.5, 23.711751, 0)), False)
sketch11.addGeometry(Part.LineSegment(V(7.5, 23.711751, 0), V(7.5, -2.788249, 0)), False)
sketch11.addConstraint(Sketcher.Constraint("Coincident", 0, 2, 1, 1))
sketch11.addConstraint(Sketcher.Constraint("Coincident", 1, 2, 2, 1))
sketch11.addConstraint(Sketcher.Constraint("Coincident", 2, 2, 3, 1))
sketch11.addConstraint(Sketcher.Constraint("Coincident", 3, 2, 0, 1))
sketch11.addConstraint(Sketcher.Constraint("Horizontal", 0))
sketch11.addConstraint(Sketcher.Constraint("Vertical", 1))
sketch11.addConstraint(Sketcher.Constraint("Horizontal", 2))
sketch11.addConstraint(Sketcher.Constraint("Vertical", 3))
sketch11.addConstraint(Sketcher.Constraint("DistanceX", 0, 2, 0, 1, 5.5))
sketch11.addConstraint(Sketcher.Constraint("DistanceY", 1, 1, 1, 2, 26.5))
sketch11.addConstraint(Sketcher.Constraint("DistanceX", -1, 1, 0, 2, 2.0))
sketch11.addConstraint(Sketcher.Constraint("DistanceY", 0, 2, -1, 1, 2.788249))
pocket8 = doc.addObject("PartDesign::Pocket", "Pocket007")
body.addObject(pocket8)
pocket8.Profile = sketch11
pocket8.Length = 5.25
pocket8.Reversed = True

sketch12 = doc.addObject("Sketcher::SketchObject", "Sketch011")
body.addObject(sketch12)
sketch12.AttachmentSupport = (doc.YZ_Plane, [""])
sketch12.MapMode = "FlatFace"
sketch12.AttachmentOffset = App.Placement(V(0, 0, 132.292981), App.Rotation())
sketch12.addGeometry(Part.LineSegment(V(6, 11.011751, 0), V(2.5, 11.011751, 0)), False)
sketch12.addGeometry(Part.LineSegment(V(2.5, 11.011751, 0), V(2.5, 20.211751, 0)), False)
sketch12.addGeometry(Part.LineSegment(V(2.5, 20.211751, 0), V(6, 20.211751, 0)), False)
sketch12.addGeometry(Part.LineSegment(V(6, 20.211751, 0), V(6, 11.011751, 0)), False)
sketch12.addGeometry(Part.LineSegment(V(3.5, 0.211751, 0), V(2.5, 0.211751, 0)), False)
sketch12.addGeometry(Part.LineSegment(V(2.5, 0.211751, 0), V(2.5, 8.011751, 0)), False)
sketch12.addGeometry(Part.LineSegment(V(2.5, 8.011751, 0), V(3.5, 8.011751, 0)), False)
sketch12.addGeometry(Part.LineSegment(V(3.5, 8.011751, 0), V(3.5, 0.211751, 0)), False)
sketch12.addConstraint(Sketcher.Constraint("Coincident", 0, 2, 1, 1))
sketch12.addConstraint(Sketcher.Constraint("Coincident", 1, 2, 2, 1))
sketch12.addConstraint(Sketcher.Constraint("Coincident", 2, 2, 3, 1))
sketch12.addConstraint(Sketcher.Constraint("Coincident", 3, 2, 0, 1))
sketch12.addConstraint(Sketcher.Constraint("Coincident", 4, 2, 5, 1))
sketch12.addConstraint(Sketcher.Constraint("Coincident", 5, 2, 6, 1))
sketch12.addConstraint(Sketcher.Constraint("Coincident", 6, 2, 7, 1))
sketch12.addConstraint(Sketcher.Constraint("Coincident", 7, 2, 4, 1))
sketch12.addConstraint(Sketcher.Constraint("Horizontal", 0))
sketch12.addConstraint(Sketcher.Constraint("Vertical", 1))
sketch12.addConstraint(Sketcher.Constraint("Horizontal", 2))
sketch12.addConstraint(Sketcher.Constraint("Vertical", 3))
sketch12.addConstraint(Sketcher.Constraint("Horizontal", 4))
sketch12.addConstraint(Sketcher.Constraint("Vertical", 5))
sketch12.addConstraint(Sketcher.Constraint("Horizontal", 6))
sketch12.addConstraint(Sketcher.Constraint("Vertical", 7))
sketch12.addConstraint(Sketcher.Constraint("Vertical", 1, 2, 4, 2))
sketch12.addConstraint(Sketcher.Constraint("DistanceX", 4, 2, 4, 1, 1.0))
sketch12.addConstraint(Sketcher.Constraint("DistanceX", 0, 2, 0, 1, 3.5))
sketch12.addConstraint(Sketcher.Constraint("DistanceY", 1, 1, 1, 2, 9.2))
sketch12.addConstraint(Sketcher.Constraint("DistanceY", 5, 1, 5, 2, 7.8))
sketch12.addConstraint(Sketcher.Constraint("DistanceX", -1, 1, 2, 2, 6.0))
sketch12.addConstraint(Sketcher.Constraint("DistanceY", 4, 2, 1, 2, 20.0))
sketch12.addConstraint(Sketcher.Constraint("DistanceY", -1, 1, 0, 2, 11.011751))
pocket9 = doc.addObject("PartDesign::Pocket", "Pocket008")
body.addObject(pocket9)
pocket9.Profile = sketch12
pocket9.Length = 5.25
pocket9.Reversed = True

sketch13 = doc.addObject("Sketcher::SketchObject", "Sketch012")
body.addObject(sketch13)
sketch13.AttachmentSupport = (doc.YZ_Plane, [""])
sketch13.MapMode = "FlatFace"
sketch13.AttachmentOffset = App.Placement(V(0, 0, 127.042981), App.Rotation())
sketch13.addGeometry(Part.LineSegment(V(7.5, -0.288249, 0), V(7.5, -2.788249, 0)), False)
sketch13.addGeometry(Part.LineSegment(V(7.5, -2.788249, 0), V(5, -2.788249, 0)), False)
sketch13.addGeometry(Part.LineSegment(V(5, -2.788249, 0), V(7.5, -0.288249, 0)), False)
sketch13.addConstraint(Sketcher.Constraint("Coincident", 0, 2, 1, 1))
sketch13.addConstraint(Sketcher.Constraint("Coincident", 1, 2, 2, 1))
sketch13.addConstraint(Sketcher.Constraint("Coincident", 2, 2, 0, 1))
sketch13.addConstraint(Sketcher.Constraint("Vertical", 0))
sketch13.addConstraint(Sketcher.Constraint("Horizontal", 1))
sketch13.addConstraint(Sketcher.Constraint("Equal", 1, 0))
sketch13.addConstraint(Sketcher.Constraint("DistanceX", 1, 2, 1, 1, 2.5))
sketch13.addConstraint(Sketcher.Constraint("DistanceX", -1, 1, 1, 2, 5.0))
sketch13.addConstraint(Sketcher.Constraint("DistanceY", 0, 2, -1, 1, 2.788249))
pad4 = doc.addObject("PartDesign::Pad", "Pad003")
body.addObject(pad4)
pad4.Profile = sketch13
pad4.Length = 5.25

sketch14 = doc.addObject("Sketcher::SketchObject", "Sketch013")
body.addObject(sketch14)
sketch14.AttachmentSupport = (doc.YZ_Plane, [""])
sketch14.MapMode = "FlatFace"
sketch14.AttachmentOffset = App.Placement(V(0, 0, 127.042981), App.Rotation())
sketch14.addGeometry(Part.LineSegment(V(5.5, 23.711751, 0), V(7.5, 23.711751, 0)), False)
sketch14.addGeometry(Part.LineSegment(V(7.5, 23.711751, 0), V(7.5, 21.711751, 0)), False)
sketch14.addGeometry(Part.LineSegment(V(7.5, 21.711751, 0), V(5.5, 23.711751, 0)), False)
sketch14.addConstraint(Sketcher.Constraint("Coincident", 0, 2, 1, 1))
sketch14.addConstraint(Sketcher.Constraint("Coincident", 1, 2, 2, 1))
sketch14.addConstraint(Sketcher.Constraint("Coincident", 2, 2, 0, 1))
sketch14.addConstraint(Sketcher.Constraint("Horizontal", 0))
sketch14.addConstraint(Sketcher.Constraint("Vertical", 1))
sketch14.addConstraint(Sketcher.Constraint("Equal", 0, 1))
sketch14.addConstraint(Sketcher.Constraint("DistanceX", 0, 1, 0, 2, 2.0))
sketch14.addConstraint(Sketcher.Constraint("DistanceX", -1, 1, 0, 2, 7.5))
sketch14.addConstraint(Sketcher.Constraint("DistanceY", -1, 1, 0, 2, 23.711751))
pad5 = doc.addObject("PartDesign::Pad", "Pad004")
body.addObject(pad5)
pad5.Profile = sketch14
pad5.Length = 5.25

sketch15 = doc.addObject("Sketcher::SketchObject", "Sketch014")
body.addObject(sketch15)
sketch15.AttachmentSupport = (doc.XZ_Plane, [""])
sketch15.MapMode = "FlatFace"
sketch15.addGeometry(Part.Circle(V(-103.707019, 85.961751, 0), V(0, 0, 1), 3), False)
sketch15.addGeometry(Part.Circle(V(120.292981, 85.961751, 0), V(0, 0, 1), 3), False)
sketch15.addGeometry(Part.Circle(V(120.292981, -63.788249, 0), V(0, 0, 1), 3), False)
sketch15.addGeometry(Part.Circle(V(-103.707019, -63.788249, 0), V(0, 0, 1), 3), False)
sketch15.addConstraint(Sketcher.Constraint("Equal", 0, 1))
sketch15.addConstraint(Sketcher.Constraint("Equal", 1, 2))
sketch15.addConstraint(Sketcher.Constraint("Equal", 2, 3))
sketch15.addConstraint(Sketcher.Constraint("Horizontal", 0, 3, 1, 3))
sketch15.addConstraint(Sketcher.Constraint("Horizontal", 2, 3, 3, 3))
sketch15.addConstraint(Sketcher.Constraint("Vertical", 1, 3, 2, 3))
sketch15.addConstraint(Sketcher.Constraint("Vertical", 0, 3, 3, 3))
sketch15.addConstraint(Sketcher.Constraint("Diameter", 0, 6.0))
sketch15.addConstraint(Sketcher.Constraint("DistanceX", 0, 3, 1, 3, 224.0))
sketch15.addConstraint(Sketcher.Constraint("DistanceY", 2, 3, 1, 3, 149.75))
sketch15.addConstraint(Sketcher.Constraint("DistanceX", 0, 3, -1, 1, 103.707019))
sketch15.addConstraint(Sketcher.Constraint("DistanceY", -1, 1, 0, 3, 85.961751))
pocket10 = doc.addObject("PartDesign::Pocket", "Pocket009")
body.addObject(pocket10)
pocket10.Profile = sketch15
pocket10.Length = 2

doc.recompute()
